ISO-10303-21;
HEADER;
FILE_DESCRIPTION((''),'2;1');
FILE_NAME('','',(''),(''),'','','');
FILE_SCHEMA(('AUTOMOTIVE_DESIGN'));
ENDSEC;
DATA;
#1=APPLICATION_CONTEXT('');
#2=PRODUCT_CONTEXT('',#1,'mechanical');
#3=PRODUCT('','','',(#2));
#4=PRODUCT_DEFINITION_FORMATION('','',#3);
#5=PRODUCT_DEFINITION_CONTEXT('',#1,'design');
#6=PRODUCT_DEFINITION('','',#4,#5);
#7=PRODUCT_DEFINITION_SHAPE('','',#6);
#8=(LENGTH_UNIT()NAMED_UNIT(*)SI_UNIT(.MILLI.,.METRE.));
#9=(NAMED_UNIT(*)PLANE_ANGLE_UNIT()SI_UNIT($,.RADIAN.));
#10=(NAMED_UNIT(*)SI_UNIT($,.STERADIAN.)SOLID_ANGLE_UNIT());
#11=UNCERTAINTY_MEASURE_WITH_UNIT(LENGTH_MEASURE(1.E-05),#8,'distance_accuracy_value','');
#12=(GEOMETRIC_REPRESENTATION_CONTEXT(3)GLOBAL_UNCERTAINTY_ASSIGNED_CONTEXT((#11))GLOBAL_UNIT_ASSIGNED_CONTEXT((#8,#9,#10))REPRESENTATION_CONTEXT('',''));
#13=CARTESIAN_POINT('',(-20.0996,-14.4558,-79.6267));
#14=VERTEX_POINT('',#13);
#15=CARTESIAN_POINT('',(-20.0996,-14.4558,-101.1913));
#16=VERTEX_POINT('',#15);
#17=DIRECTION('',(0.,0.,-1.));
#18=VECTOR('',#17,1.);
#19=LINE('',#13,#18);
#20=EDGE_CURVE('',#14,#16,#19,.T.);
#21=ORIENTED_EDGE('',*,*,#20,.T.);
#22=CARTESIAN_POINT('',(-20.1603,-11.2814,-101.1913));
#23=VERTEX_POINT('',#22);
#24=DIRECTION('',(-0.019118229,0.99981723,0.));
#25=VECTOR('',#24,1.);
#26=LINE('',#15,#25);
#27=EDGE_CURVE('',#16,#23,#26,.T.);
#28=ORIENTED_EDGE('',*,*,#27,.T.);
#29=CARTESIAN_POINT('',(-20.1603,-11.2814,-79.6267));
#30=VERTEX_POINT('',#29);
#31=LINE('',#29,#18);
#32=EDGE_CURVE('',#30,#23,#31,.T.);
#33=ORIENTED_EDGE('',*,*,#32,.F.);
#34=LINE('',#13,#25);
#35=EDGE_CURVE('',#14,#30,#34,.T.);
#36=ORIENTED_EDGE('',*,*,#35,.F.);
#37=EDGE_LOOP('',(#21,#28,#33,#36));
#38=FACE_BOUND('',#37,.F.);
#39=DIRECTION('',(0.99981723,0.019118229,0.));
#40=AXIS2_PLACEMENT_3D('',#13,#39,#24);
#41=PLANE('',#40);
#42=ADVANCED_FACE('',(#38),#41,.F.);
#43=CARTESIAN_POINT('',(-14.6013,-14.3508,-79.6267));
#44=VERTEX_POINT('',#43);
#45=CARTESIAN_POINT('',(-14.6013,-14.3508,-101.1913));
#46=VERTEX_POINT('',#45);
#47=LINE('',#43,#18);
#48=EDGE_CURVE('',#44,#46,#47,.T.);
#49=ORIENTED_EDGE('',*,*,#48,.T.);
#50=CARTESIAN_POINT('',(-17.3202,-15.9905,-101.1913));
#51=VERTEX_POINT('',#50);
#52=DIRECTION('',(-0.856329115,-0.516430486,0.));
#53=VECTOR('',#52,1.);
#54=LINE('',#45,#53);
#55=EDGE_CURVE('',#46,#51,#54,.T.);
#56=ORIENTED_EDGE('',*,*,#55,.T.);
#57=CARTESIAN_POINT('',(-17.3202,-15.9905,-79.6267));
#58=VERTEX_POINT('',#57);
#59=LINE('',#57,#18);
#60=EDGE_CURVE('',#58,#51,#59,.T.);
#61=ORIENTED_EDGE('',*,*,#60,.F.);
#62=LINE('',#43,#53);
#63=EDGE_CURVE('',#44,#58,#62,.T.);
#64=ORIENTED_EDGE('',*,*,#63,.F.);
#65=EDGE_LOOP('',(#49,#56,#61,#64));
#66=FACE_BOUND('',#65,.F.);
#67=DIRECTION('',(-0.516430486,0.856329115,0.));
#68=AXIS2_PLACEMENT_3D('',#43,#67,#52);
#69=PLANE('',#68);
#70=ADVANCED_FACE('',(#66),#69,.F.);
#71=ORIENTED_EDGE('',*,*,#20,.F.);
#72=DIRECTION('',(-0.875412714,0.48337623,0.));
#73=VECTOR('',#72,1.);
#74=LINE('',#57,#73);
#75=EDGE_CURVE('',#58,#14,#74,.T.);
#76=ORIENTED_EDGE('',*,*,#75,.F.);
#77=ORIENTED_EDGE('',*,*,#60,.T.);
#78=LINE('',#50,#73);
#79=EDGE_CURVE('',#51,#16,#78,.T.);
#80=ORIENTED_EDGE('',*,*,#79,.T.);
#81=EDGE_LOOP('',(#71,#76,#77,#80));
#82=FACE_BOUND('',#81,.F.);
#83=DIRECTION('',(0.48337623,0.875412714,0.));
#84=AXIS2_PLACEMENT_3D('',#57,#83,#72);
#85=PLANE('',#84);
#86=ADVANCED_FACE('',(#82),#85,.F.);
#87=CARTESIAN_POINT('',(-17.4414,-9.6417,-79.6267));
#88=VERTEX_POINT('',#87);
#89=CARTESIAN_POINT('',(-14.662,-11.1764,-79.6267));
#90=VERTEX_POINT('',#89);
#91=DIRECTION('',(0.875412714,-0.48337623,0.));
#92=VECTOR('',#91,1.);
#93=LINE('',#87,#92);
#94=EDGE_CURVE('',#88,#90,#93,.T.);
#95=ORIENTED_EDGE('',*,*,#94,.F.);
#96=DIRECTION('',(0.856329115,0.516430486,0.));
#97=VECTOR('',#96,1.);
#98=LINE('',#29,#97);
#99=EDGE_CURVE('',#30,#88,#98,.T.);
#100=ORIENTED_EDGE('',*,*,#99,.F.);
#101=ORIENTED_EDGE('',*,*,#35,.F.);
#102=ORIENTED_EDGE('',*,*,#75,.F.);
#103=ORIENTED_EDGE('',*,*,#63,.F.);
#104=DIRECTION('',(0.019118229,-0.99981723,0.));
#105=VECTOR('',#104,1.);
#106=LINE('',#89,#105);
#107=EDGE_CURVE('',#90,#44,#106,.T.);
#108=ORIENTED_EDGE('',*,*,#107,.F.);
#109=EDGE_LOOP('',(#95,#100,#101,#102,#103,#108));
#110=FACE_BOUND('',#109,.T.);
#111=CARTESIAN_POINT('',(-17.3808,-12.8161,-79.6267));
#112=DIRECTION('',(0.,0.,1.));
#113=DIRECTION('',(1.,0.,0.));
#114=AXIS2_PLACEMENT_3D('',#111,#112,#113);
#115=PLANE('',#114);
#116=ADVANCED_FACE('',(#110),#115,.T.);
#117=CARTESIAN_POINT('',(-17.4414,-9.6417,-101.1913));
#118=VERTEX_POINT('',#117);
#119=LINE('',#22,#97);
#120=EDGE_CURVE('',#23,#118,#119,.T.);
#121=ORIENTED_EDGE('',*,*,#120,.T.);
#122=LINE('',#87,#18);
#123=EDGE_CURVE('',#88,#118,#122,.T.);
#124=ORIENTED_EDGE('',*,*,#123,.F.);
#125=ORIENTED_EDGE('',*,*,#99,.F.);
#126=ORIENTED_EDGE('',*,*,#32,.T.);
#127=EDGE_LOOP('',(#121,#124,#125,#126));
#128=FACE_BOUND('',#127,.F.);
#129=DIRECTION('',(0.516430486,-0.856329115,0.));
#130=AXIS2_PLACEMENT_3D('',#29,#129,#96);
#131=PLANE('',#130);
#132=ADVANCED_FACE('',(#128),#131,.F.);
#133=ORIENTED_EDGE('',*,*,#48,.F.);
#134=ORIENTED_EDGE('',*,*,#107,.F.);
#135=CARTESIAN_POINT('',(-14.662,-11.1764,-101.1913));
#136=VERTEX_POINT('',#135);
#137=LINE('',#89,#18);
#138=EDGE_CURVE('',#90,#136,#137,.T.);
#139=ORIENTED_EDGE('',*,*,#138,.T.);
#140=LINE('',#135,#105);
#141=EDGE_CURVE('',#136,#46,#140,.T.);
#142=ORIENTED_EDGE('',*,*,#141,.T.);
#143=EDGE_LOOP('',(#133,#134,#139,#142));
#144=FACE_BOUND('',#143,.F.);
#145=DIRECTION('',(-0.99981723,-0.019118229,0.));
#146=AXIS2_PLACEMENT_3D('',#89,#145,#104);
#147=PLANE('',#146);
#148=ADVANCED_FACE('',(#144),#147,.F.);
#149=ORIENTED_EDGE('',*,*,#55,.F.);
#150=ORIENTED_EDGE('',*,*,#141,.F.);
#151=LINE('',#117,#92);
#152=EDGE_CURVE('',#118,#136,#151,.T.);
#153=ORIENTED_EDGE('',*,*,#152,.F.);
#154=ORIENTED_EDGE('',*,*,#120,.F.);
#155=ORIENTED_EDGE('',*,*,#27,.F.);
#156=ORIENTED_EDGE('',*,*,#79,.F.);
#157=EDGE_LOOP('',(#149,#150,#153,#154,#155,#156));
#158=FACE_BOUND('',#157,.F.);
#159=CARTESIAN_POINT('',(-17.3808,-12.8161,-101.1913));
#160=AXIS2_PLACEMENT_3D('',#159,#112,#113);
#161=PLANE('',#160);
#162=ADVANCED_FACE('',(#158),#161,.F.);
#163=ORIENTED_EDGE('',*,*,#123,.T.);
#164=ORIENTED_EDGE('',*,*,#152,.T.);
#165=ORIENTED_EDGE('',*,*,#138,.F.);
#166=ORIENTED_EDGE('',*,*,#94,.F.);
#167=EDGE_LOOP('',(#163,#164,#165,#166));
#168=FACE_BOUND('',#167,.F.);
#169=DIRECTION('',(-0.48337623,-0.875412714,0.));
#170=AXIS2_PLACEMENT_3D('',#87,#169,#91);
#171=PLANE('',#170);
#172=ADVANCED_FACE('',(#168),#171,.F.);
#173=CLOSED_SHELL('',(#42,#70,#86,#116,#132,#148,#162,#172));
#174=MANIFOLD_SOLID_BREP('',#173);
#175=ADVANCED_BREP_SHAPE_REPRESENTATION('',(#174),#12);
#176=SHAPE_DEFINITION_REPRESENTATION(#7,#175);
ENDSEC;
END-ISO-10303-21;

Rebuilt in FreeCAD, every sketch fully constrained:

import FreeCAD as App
import Part
import Sketcher
Q = App.Units.Quantity

doc = App.newDocument("Part")
body = doc.addObject("PartDesign::Body", "Body")

sketch1 = doc.addObject("Sketcher::SketchObject", "Sketch")
body.addObject(sketch1)
sketch1.AttachmentSupport = (doc.XY_Plane, [""])
sketch1.MapMode = "FlatFace"
sketch1.AttachmentOffset = App.Placement(App.Vector(0, 0, -3.1349094 * 25.4), App.Rotation())
sketch1.addGeometry([
    Part.LineSegment(App.Vector(-14.6013, -14.3508, 0), App.Vector(-14.662, -11.1764, 0)),
    Part.LineSegment(App.Vector(-14.662, -11.1764, 0), App.Vector(-17.4414, -9.6417, 0)),
    Part.LineSegment(App.Vector(-17.4414, -9.6417, 0), App.Vector(-20.1603, -11.2814, 0)),
    Part.LineSegment(App.Vector(-20.1603, -11.2814, 0), App.Vector(-20.0996, -14.4558, 0)),
    Part.LineSegment(App.Vector(-20.0996, -14.4558, 0), App.Vector(-17.3202, -15.9905, 0)),
    Part.LineSegment(App.Vector(-17.3202, -15.9905, 0), App.Vector(-14.6013, -14.3508, 0)),
], False)
sketch1.addConstraint([
    Sketcher.Constraint("Coincident", 0, 2, 1, 1),
    Sketcher.Constraint("Coincident", 1, 2, 2, 1),
    Sketcher.Constraint("Coincident", 2, 2, 3, 1),
    Sketcher.Constraint("Coincident", 3, 2, 4, 1),
    Sketcher.Constraint("Coincident", 4, 2, 5, 1),
    Sketcher.Constraint("Coincident", 5, 2, 0, 1),
    Sketcher.Constraint("Parallel", 0, 3),
    Sketcher.Constraint("Parallel", 1, 4),
    Sketcher.Constraint("Parallel", 2, 5),
    Sketcher.Constraint("Equal", 0, 1),
    Sketcher.Constraint("Equal", 1, 2),
    Sketcher.Constraint("Equal", 2, 3),
    Sketcher.Constraint("Distance", 0, Q("0.125 in")),
    Sketcher.Constraint("DistanceY", 5, 2, -1, 1, Q("0.565 in")),
    Sketcher.Constraint("DistanceY", 1, 2, -1, 1, Q("0.3796 in")),
    Sketcher.Constraint("DistanceX", 4, 2, -1, 1, Q("0.6819 in")),
    Sketcher.Constraint("DistanceX", 2, 2, 3, 2, Q("0.0024 in")),
    Sketcher.Constraint("DistanceY", 3, 2, 0, 2, Q("0.1291 in")),
])
pad1 = doc.addObject("PartDesign::Pad", "Pad")
body.addObject(pad1)
pad1.Profile = sketch1
pad1.Length = Q("0.849 in")
pad1.Reversed = True

doc.recompute()
